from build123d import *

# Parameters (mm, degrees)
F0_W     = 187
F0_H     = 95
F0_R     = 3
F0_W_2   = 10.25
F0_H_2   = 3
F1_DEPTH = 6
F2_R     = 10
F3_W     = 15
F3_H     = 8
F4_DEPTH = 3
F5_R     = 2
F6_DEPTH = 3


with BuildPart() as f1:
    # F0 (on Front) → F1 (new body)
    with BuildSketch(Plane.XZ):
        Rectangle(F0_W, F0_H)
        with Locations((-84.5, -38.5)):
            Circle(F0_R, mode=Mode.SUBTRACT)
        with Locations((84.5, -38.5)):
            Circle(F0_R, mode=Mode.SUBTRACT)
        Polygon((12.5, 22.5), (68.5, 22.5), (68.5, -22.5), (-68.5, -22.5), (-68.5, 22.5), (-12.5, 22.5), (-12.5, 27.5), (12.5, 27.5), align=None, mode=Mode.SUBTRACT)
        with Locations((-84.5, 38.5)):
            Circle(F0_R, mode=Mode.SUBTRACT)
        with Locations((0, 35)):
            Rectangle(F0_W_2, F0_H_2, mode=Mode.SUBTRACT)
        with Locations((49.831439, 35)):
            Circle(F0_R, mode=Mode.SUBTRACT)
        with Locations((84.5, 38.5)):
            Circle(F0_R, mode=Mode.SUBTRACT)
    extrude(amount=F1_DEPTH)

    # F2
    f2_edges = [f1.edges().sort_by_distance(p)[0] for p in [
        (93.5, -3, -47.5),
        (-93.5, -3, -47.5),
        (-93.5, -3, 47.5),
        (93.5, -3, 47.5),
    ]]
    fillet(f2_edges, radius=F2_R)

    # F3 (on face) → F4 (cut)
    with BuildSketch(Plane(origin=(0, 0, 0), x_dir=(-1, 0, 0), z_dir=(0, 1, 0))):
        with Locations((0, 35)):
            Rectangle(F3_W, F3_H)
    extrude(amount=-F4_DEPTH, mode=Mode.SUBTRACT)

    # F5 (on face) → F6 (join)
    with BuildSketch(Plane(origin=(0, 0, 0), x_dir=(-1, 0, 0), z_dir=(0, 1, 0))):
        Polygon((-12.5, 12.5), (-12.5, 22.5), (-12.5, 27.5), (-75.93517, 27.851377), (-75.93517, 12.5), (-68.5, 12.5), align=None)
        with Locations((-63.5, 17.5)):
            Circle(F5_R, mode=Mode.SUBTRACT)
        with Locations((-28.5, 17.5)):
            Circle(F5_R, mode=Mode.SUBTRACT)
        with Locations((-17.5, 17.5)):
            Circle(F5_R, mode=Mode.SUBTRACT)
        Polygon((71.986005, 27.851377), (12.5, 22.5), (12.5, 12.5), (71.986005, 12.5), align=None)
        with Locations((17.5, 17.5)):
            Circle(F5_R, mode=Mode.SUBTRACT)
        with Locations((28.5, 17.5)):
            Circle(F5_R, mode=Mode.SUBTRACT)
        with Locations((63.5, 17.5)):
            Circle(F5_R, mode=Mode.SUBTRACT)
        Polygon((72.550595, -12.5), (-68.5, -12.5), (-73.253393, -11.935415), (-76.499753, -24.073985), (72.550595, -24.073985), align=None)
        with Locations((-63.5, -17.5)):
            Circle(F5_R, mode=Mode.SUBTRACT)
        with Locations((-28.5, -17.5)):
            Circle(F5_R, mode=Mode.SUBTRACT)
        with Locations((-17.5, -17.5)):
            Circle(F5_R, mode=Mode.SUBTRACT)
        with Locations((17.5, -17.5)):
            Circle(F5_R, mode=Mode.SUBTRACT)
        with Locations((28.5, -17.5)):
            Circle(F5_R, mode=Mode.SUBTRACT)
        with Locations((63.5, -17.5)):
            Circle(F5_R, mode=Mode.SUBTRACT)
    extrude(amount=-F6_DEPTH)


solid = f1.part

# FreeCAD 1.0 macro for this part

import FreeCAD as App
import Part
import Sketcher
Q = App.Units.Quantity


def edges_at(feature, points):
    """Names of the edges that pass closest to the given points."""
    edges = feature.Shape.Edges
    near = lambda p: min(range(len(edges)), key=lambda i: edges[i].distToShape(Part.Vertex(*p))[0])
    return sorted({f"Edge{near(p) + 1}" for p in points})

doc = App.newDocument("Part")
body = doc.addObject("PartDesign::Body", "Body")

# Sketch on XZ plane
sketch1 = doc.addObject("Sketcher::SketchObject", "Sketch")
body.addObject(sketch1)
sketch1.AttachmentSupport = (doc.XZ_Plane, [""])
sketch1.MapMode = "FlatFace"
sketch1.addGeometry([
    Part.LineSegment(App.Vector(-93.5, 47.5, 0), App.Vector(-93.5, -47.5, 0)),  # 0
    Part.LineSegment(App.Vector(-93.5, -47.5, 0), App.Vector(93.5, -47.5, 0)),  # 1
    Part.LineSegment(App.Vector(93.5, -47.5, 0), App.Vector(93.5, 47.5, 0)),  # 2
    Part.LineSegment(App.Vector(93.5, 47.5, 0), App.Vector(-93.5, 47.5, 0)),  # 3
    Part.Circle(App.Vector(-84.5, -38.5, 0), App.Vector(0, 0, 1), 3),  # 4
    Part.Circle(App.Vector(84.5, -38.5, 0), App.Vector(0, 0, 1), 3),  # 5
    Part.Circle(App.Vector(-84.5, 38.5, 0), App.Vector(0, 0, 1), 3),  # 6
    Part.LineSegment(App.Vector(12.5, 27.5, 0), App.Vector(12.5, 22.5, 0)),  # 7
    Part.LineSegment(App.Vector(12.5, 22.5, 0), App.Vector(68.5, 22.5, 0)),  # 8
    Part.LineSegment(App.Vector(68.5, 22.5, 0), App.Vector(68.5, -22.5, 0)),  # 9
    Part.LineSegment(App.Vector(68.5, -22.5, 0), App.Vector(-68.5, -22.5, 0)),  # 10
    Part.LineSegment(App.Vector(-68.5, -22.5, 0), App.Vector(-68.5, 22.5, 0)),  # 11
    Part.LineSegment(App.Vector(-68.5, 22.5, 0), App.Vector(-12.5, 22.5, 0)),  # 12
    Part.LineSegment(App.Vector(-12.5, 22.5, 0), App.Vector(-12.5, 27.5, 0)),  # 13
    Part.LineSegment(App.Vector(-12.5, 27.5, 0), App.Vector(12.5, 27.5, 0)),  # 14
    Part.LineSegment(App.Vector(5.125, 33.5, 0), App.Vector(-5.125, 33.5, 0)),  # 15
    Part.LineSegment(App.Vector(-5.125, 33.5, 0), App.Vector(-5.125, 36.5, 0)),  # 16
    Part.LineSegment(App.Vector(-5.125, 36.5, 0), App.Vector(5.125, 36.5, 0)),  # 17
    Part.LineSegment(App.Vector(5.125, 36.5, 0), App.Vector(5.125, 33.5, 0)),  # 18
    Part.Circle(App.Vector(49.831439, 35, 0), App.Vector(0, 0, 1), 3),  # 19
    Part.Circle(App.Vector(84.5, 38.5, 0), App.Vector(0, 0, 1), 3),  # 20
], False)
sketch1.addConstraint([
    Sketcher.Constraint("Coincident", 0, 2, 1, 1),
    Sketcher.Constraint("Coincident", 1, 2, 2, 1),
    Sketcher.Constraint("Coincident", 2, 2, 3, 1),
    Sketcher.Constraint("Coincident", 3, 2, 0, 1),
    Sketcher.Constraint("Coincident", 7, 2, 8, 1),
    Sketcher.Constraint("Coincident", 8, 2, 9, 1),
    Sketcher.Constraint("Coincident", 9, 2, 10, 1),
    Sketcher.Constraint("Coincident", 10, 2, 11, 1),
    Sketcher.Constraint("Coincident", 11, 2, 12, 1),
    Sketcher.Constraint("Coincident", 12, 2, 13, 1),
    Sketcher.Constraint("Coincident", 13, 2, 14, 1),
    Sketcher.Constraint("Coincident", 14, 2, 7, 1),
    Sketcher.Constraint("Coincident", 15, 2, 16, 1),
    Sketcher.Constraint("Coincident", 16, 2, 17, 1),
    Sketcher.Constraint("Coincident", 17, 2, 18, 1),
    Sketcher.Constraint("Coincident", 18, 2, 15, 1),
    Sketcher.Constraint("Vertical", 0),
    Sketcher.Constraint("Horizontal", 1),
    Sketcher.Constraint("Vertical", 2),
    Sketcher.Constraint("Horizontal", 3),
    Sketcher.Constraint("Vertical", 7),
    Sketcher.Constraint("Horizontal", 8),
    Sketcher.Constraint("Vertical", 9),
    Sketcher.Constraint("Horizontal", 10),
    Sketcher.Constraint("Vertical", 11),
    Sketcher.Constraint("Horizontal", 12),
    Sketcher.Constraint("Vertical", 13),
    Sketcher.Constraint("Horizontal", 14),
    Sketcher.Constraint("Horizontal", 15),
    Sketcher.Constraint("Vertical", 16),
    Sketcher.Constraint("Horizontal", 17),
    Sketcher.Constraint("Vertical", 18),
    Sketcher.Constraint("Equal", 4, 5),
    Sketcher.Constraint("Equal", 5, 6),
    Sketcher.Constraint("Equal", 6, 19),
    Sketcher.Constraint("Equal", 19, 20),
    Sketcher.Constraint("Symmetric", 5, 3, 6, 3, -1, 1),
    Sketcher.Constraint("Symmetric", 4, 3, 20, 3, -1, 1),
    Sketcher.Constraint("Symmetric", 0, 2, 2, 2, -1, 1),
    Sketcher.Constraint("Symmetric", 8, 2, 10, 2, -1, 1),
    Sketcher.Constraint("Symmetric", 4, 3, 5, 3, -2),
    Sketcher.Constraint("Symmetric", 7, 2, 12, 2, -2),
    Sketcher.Constraint("Diameter", 4, Q("6 mm")),
    Sketcher.Constraint("DistanceX", 1, 1, 1, 2, Q("187 mm")),
    Sketcher.Constraint("DistanceX", 8, 1, 8, 2, Q("56 mm")),
    Sketcher.Constraint("DistanceX", 10, 2, 10, 1, Q("137 mm")),
    Sketcher.Constraint("DistanceY", 0, 2, 0, 1, Q("95 mm")),
    Sketcher.Constraint("DistanceY", 7, 2, 7, 1, Q("5 mm")),
    Sketcher.Constraint("DistanceY", 9, 2, 9, 1, Q("45 mm")),
    Sketcher.Constraint("DistanceY", 16, 1, 16, 2, Q("3 mm")),
    Sketcher.Constraint("DistanceY", -1, 1, 19, 3, Q("35 mm")),
    Sketcher.Constraint("DistanceX", 4, 3, 5, 3, Q("169 mm")),
    Sketcher.Constraint("DistanceY", 4, 3, 6, 3, Q("77 mm")),
    Sketcher.Constraint("DistanceY", 13, 2, 15, 2, Q("6 mm")),
    Sketcher.Constraint("DistanceX", 15, 2, 15, 1, Q("10.25 mm")),
    Sketcher.Constraint("DistanceX", 15, 2, -1, 1, Q("5.125 mm")),
    Sketcher.Constraint("DistanceX", -1, 1, 19, 3, Q("49.831439 mm")),
])
pad1 = doc.addObject("PartDesign::Pad", "Pad")
body.addObject(pad1)
pad1.Profile = sketch1
pad1.Length = 6
doc.recompute()

fillet = doc.addObject("PartDesign::Fillet", "Fillet")
body.addObject(fillet)
fillet.Base = (pad1, edges_at(pad1, [
    (93.5, -3, -47.5),
    (-93.5, -3, -47.5),
    (-93.5, -3, 47.5),
    (93.5, -3, 47.5),
]))
fillet.Radius = 10

# Sketch on XZ plane
sketch2 = doc.addObject("Sketcher::SketchObject", "Sketch001")
body.addObject(sketch2)
sketch2.AttachmentSupport = (doc.XZ_Plane, [""])
sketch2.MapMode = "FlatFace"
sketch2.addGeometry([
    Part.LineSegment(App.Vector(7.5, 39, 0), App.Vector(7.5, 31, 0)),
    Part.LineSegment(App.Vector(7.5, 31, 0), App.Vector(-7.5, 31, 0)),
    Part.LineSegment(App.Vector(-7.5, 31, 0), App.Vector(-7.5, 39, 0)),
    Part.LineSegment(App.Vector(-7.5, 39, 0), App.Vector(7.5, 39, 0)),
], False)
sketch2.addConstraint([
    Sketcher.Constraint("Coincident", 0, 2, 1, 1),
    Sketcher.Constraint("Coincident", 1, 2, 2, 1),
    Sketcher.Constraint("Coincident", 2, 2, 3, 1),
    Sketcher.Constraint("Coincident", 3, 2, 0, 1),
    Sketcher.Constraint("Vertical", 0),
    Sketcher.Constraint("Horizontal", 1),
    Sketcher.Constraint("Vertical", 2),
    Sketcher.Constraint("Horizontal", 3),
    Sketcher.Constraint("DistanceX", 1, 2, 1, 1, Q("15 mm")),
    Sketcher.Constraint("DistanceY", 0, 2, 0, 1, Q("8 mm")),
    Sketcher.Constraint("DistanceY", -1, 1, 0, 2, Q("31 mm")),
    Sketcher.Constraint("DistanceX", -1, 1, 0, 2, Q("7.5 mm")),
])
pocket1 = doc.addObject("PartDesign::Pocket", "Pocket")
body.addObject(pocket1)
pocket1.Profile = sketch2
pocket1.Length = 3
pocket1.Reversed = True

# Sketch on XZ plane
sketch3 = doc.addObject("Sketcher::SketchObject", "Sketch002")
body.addObject(sketch3)
sketch3.AttachmentSupport = (doc.XZ_Plane, [""])
sketch3.MapMode = "FlatFace"
sketch3.addGeometry([
    Part.LineSegment(App.Vector(12.5, 12.5, 0), App.Vector(12.5, 27.5, 0)),  # 0
    Part.LineSegment(App.Vector(12.5, 27.5, 0), App.Vector(75.93517, 27.851377, 0)),  # 1
    Part.LineSegment(App.Vector(75.93517, 27.851377, 0), App.Vector(75.93517, 12.5, 0)),  # 2
    Part.LineSegment(App.Vector(75.93517, 12.5, 0), App.Vector(12.5, 12.5, 0)),  # 3
    Part.Circle(App.Vector(63.5, 17.5, 0), App.Vector(0, 0, 1), 2),  # 4
    Part.Circle(App.Vector(28.5, 17.5, 0), App.Vector(0, 0, 1), 2),  # 5
    Part.Circle(App.Vector(17.5, 17.5, 0), App.Vector(0, 0, 1), 2),  # 6
    Part.LineSegment(App.Vector(-71.986005, 27.851377, 0), App.Vector(-12.5, 22.5, 0)),  # 7
    Part.LineSegment(App.Vector(-12.5, 22.5, 0), App.Vector(-12.5, 12.5, 0)),  # 8
    Part.LineSegment(App.Vector(-12.5, 12.5, 0), App.Vector(-71.986005, 12.5, 0)),  # 9
    Part.LineSegment(App.Vector(-71.986005, 12.5, 0), App.Vector(-71.986005, 27.851377, 0)),  # 10
    Part.Circle(App.Vector(-17.5, 17.5, 0), App.Vector(0, 0, 1), 2),  # 11
    Part.Circle(App.Vector(-28.5, 17.5, 0), App.Vector(0, 0, 1), 2),  # 12
    Part.Circle(App.Vector(-63.5, 17.5, 0), App.Vector(0, 0, 1), 2),  # 13
    Part.LineSegment(App.Vector(-72.550595, -12.5, 0), App.Vector(68.5, -12.5, 0)),  # 14
    Part.LineSegment(App.Vector(68.5, -12.5, 0), App.Vector(73.253393, -11.935415, 0)),  # 15
    Part.LineSegment(App.Vector(73.253393, -11.935415, 0), App.Vector(76.499753, -24.073985, 0)),  # 16
    Part.LineSegment(App.Vector(76.499753, -24.073985, 0), App.Vector(-72.550595, -24.073985, 0)),  # 17
    Part.LineSegment(App.Vector(-72.550595, -24.073985, 0), App.Vector(-72.550595, -12.5, 0)),  # 18
    Part.Circle(App.Vector(63.5, -17.5, 0), App.Vector(0, 0, 1), 2),  # 19
    Part.Circle(App.Vector(28.5, -17.5, 0), App.Vector(0, 0, 1), 2),  # 20
    Part.Circle(App.Vector(17.5, -17.5, 0), App.Vector(0, 0, 1), 2),  # 21
    Part.Circle(App.Vector(-17.5, -17.5, 0), App.Vector(0, 0, 1), 2),  # 22
    Part.Circle(App.Vector(-28.5, -17.5, 0), App.Vector(0, 0, 1), 2),  # 23
    Part.Circle(App.Vector(-63.5, -17.5, 0), App.Vector(0, 0, 1), 2),  # 24
], False)
sketch3.addConstraint([
    Sketcher.Constraint("Coincident", 0, 2, 1, 1),
    Sketcher.Constraint("Coincident", 1, 2, 2, 1),
    Sketcher.Constraint("Coincident", 2, 2, 3, 1),
    Sketcher.Constraint("Coincident", 3, 2, 0, 1),
    Sketcher.Constraint("Coincident", 7, 2, 8, 1),
    Sketcher.Constraint("Coincident", 8, 2, 9, 1),
    Sketcher.Constraint("Coincident", 9, 2, 10, 1),
    Sketcher.Constraint("Coincident", 10, 2, 7, 1),
    Sketcher.Constraint("Coincident", 14, 2, 15, 1),
    Sketcher.Constraint("Coincident", 15, 2, 16, 1),
    Sketcher.Constraint("Coincident", 16, 2, 17, 1),
    Sketcher.Constraint("Coincident", 17, 2, 18, 1),
    Sketcher.Constraint("Coincident", 18, 2, 14, 1),
    Sketcher.Constraint("Vertical", 0),
    Sketcher.Constraint("Vertical", 2),
    Sketcher.Constraint("Horizontal", 3),
    Sketcher.Constraint("Vertical", 8),
    Sketcher.Constraint("Horizontal", 9),
    Sketcher.Constraint("Vertical", 10),
    Sketcher.Constraint("Horizontal", 14),
    Sketcher.Constraint("Horizontal", 17),
    Sketcher.Constraint("Vertical", 18),
    Sketcher.Constraint("Equal", 4, 5),
    Sketcher.Constraint("Equal", 5, 6),
    Sketcher.Constraint("Equal", 6, 11),
    Sketcher.Constraint("Equal", 11, 12),
    Sketcher.Constraint("Equal", 12, 13),
    Sketcher.Constraint("Equal", 13, 19),
    Sketcher.Constraint("Equal", 19, 20),
    Sketcher.Constraint("Equal", 20, 21),
    Sketcher.Constraint("Equal", 21, 22),
    Sketcher.Constraint("Equal", 22, 23),
    Sketcher.Constraint("Equal", 23, 24),
    Sketcher.Constraint("Symmetric", 13, 3, 19, 3, -1, 1),
    Sketcher.Constraint("Symmetric", 12, 3, 20, 3, -1, 1),
    Sketcher.Constraint("Symmetric", 11, 3, 21, 3, -1, 1),
    Sketcher.Constraint("Symmetric", 6, 3, 22, 3, -1, 1),
    Sketcher.Constraint("Symmetric", 5, 3, 23, 3, -1, 1),
    Sketcher.Constraint("Symmetric", 4, 3, 24, 3, -1, 1),
    Sketcher.Constraint("Symmetric", 6, 3, 11, 3, -2),
    Sketcher.Constraint("Symmetric", 5, 3, 12, 3, -2),
    Sketcher.Constraint("Symmetric", 4, 3, 13, 3, -2),
    Sketcher.Constraint("Symmetric", 3, 2, 8, 2, -2),
    Sketcher.Constraint("Horizontal", 4, 3, 5, 3),
    Sketcher.Constraint("Horizontal", 5, 3, 6, 3),
    Sketcher.Constraint("Horizontal", 1, 2, 10, 2),
    Sketcher.Constraint("Diameter", 4, Q("4 mm")),
    Sketcher.Constraint("DistanceY", 0, 1, 0, 2, Q("15 mm")),
    Sketcher.Constraint("DistanceY", 8, 2, 8, 1, Q("10 mm")),
    Sketcher.Constraint("DistanceX", 5, 3, 4, 3, Q("35 mm")),
    Sketcher.Constraint("DistanceX", 6, 3, 5, 3, Q("11 mm")),
    Sketcher.Constraint("DistanceX", 11, 3, 6, 3, Q("35 mm")),
    Sketcher.Constraint("DistanceY", 19, 3, 4, 3, Q("35 mm")),
    Sketcher.Constraint("DistanceX", 0, 2, 6, 3, Q("5 mm")),
    Sketcher.Constraint("DistanceY", 6, 3, 0, 2, Q("10 mm")),
    Sketcher.Constraint("DistanceX", 19, 3, 14, 2, Q("5 mm")),
    Sketcher.Constraint("DistanceY", 19, 3, 14, 2, Q("5 mm")),
    Sketcher.Constraint("DistanceX", 3, 2, 3, 1, Q("63.43517 mm")),
    Sketcher.Constraint("Distance", 16, Q("12.565179 mm")),
    Sketcher.Constraint("DistanceX", 9, 2, 9, 1, Q("59.486005 mm")),
    Sketcher.Constraint("DistanceX", 14, 1, 14, 2, Q("141.050595 mm")),
    Sketcher.Constraint("DistanceX", 17, 2, 17, 1, Q("149.050348 mm")),
    Sketcher.Constraint("DistanceY", 2, 2, 2, 1, Q("15.351377 mm")),
    Sketcher.Constraint("DistanceY", 18, 1, 18, 2, Q("11.573985 mm")),
    Sketcher.Constraint("DistanceY", 15, 2, 1, 2, Q("39.786792 mm")),
])
pad2 = doc.addObject("PartDesign::Pad", "Pad001")
body.addObject(pad2)
pad2.Profile = sketch3
pad2.Length = 3

doc.recompute()
